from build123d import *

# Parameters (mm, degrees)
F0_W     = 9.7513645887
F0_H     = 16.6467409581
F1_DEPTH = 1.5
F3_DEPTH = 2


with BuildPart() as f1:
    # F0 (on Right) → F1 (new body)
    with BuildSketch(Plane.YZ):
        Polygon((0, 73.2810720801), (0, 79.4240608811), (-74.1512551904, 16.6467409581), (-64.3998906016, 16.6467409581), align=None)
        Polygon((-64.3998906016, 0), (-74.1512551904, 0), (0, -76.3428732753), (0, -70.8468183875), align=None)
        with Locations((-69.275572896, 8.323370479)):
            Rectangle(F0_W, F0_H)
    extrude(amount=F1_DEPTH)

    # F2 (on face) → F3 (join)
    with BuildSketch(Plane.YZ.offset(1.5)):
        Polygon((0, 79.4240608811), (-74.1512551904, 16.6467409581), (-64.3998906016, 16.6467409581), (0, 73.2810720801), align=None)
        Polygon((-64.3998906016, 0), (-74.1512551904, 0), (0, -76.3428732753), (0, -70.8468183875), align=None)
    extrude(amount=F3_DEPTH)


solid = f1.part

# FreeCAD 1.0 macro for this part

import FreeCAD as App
import Part
import Sketcher
Q = App.Units.Quantity

doc = App.newDocument("Part")
body = doc.addObject("PartDesign::Body", "Body")

sketch1 = body.newObject("Sketcher::SketchObject", "Sketch")
sketch1.AttachmentSupport = (doc.getObject("YZ_Plane"), [""])
sketch1.MapMode = "FlatFace"
sketch1.addGeometry([
    Part.LineSegment(App.Vector(0, 73, 0), App.Vector(0, 79, 0)),
    Part.LineSegment(App.Vector(0, 79, 0), App.Vector(-74, 17, 0)),
    Part.LineSegment(App.Vector(-74, 17, 0), App.Vector(-74, 0, 0)),
    Part.LineSegment(App.Vector(-74, 0, 0), App.Vector(0, -76, 0)),
    Part.LineSegment(App.Vector(0, -76, 0), App.Vector(0, -71, 0)),
    Part.LineSegment(App.Vector(0, -71, 0), App.Vector(-64, 0, 0)),
    Part.LineSegment(App.Vector(-64, 0, 0), App.Vector(-64, 17, 0)),
    Part.LineSegment(App.Vector(-64, 17, 0), App.Vector(0, 73, 0)),
], False)
sketch1.addConstraint([
    Sketcher.Constraint("Coincident", 0, 2, 1, 1),
    Sketcher.Constraint("Coincident", 1, 2, 2, 1),
    Sketcher.Constraint("Coincident", 2, 2, 3, 1),
    Sketcher.Constraint("Coincident", 3, 2, 4, 1),
    Sketcher.Constraint("Coincident", 4, 2, 5, 1),
    Sketcher.Constraint("Coincident", 5, 2, 6, 1),
    Sketcher.Constraint("Coincident", 6, 2, 7, 1),
    Sketcher.Constraint("Coincident", 7, 2, 0, 1),
    Sketcher.Constraint("Vertical", 0),
    Sketcher.Constraint("Vertical", 2),
    Sketcher.Constraint("Vertical", 4),
    Sketcher.Constraint("Vertical", 6),
    Sketcher.Constraint("PointOnObject", 0, 2, -2),
    Sketcher.Constraint("PointOnObject", 2, 2, -1),
    Sketcher.Constraint("PointOnObject", 3, 2, -2),
    Sketcher.Constraint("PointOnObject", 5, 2, -1),
    Sketcher.Constraint("Horizontal", 1, 2, 6, 2),
    Sketcher.Constraint("DistanceY", 0, 1, 0, 2, Q("6.142989 mm")),
    Sketcher.Constraint("DistanceY", 2, 2, 2, 1, Q("16.646741 mm")),
    Sketcher.Constraint("Distance", 7, Q("85.760092 mm")),
    Sketcher.Constraint("DistanceY", 4, 1, 4, 2, Q("5.496055 mm")),
    Sketcher.Constraint("DistanceY", -1, 1, 0, 2, Q("79.424061 mm")),
    Sketcher.Constraint("DistanceY", 4, 2, -1, 1, Q("70.846818 mm")),
    Sketcher.Constraint("Distance", 1, Q("97.156577 mm")),
])
pad1 = body.newObject("PartDesign::Pad", "Pad")
pad1.Profile = sketch1
pad1.Length = 1.5

sketch2 = body.newObject("Sketcher::SketchObject", "Sketch001")
sketch2.AttachmentSupport = (doc.getObject("YZ_Plane"), [""])
sketch2.MapMode = "FlatFace"
sketch2.AttachmentOffset = App.Placement(App.Vector(0, 0, 1.5), App.Rotation())
sketch2.addGeometry([
    Part.LineSegment(App.Vector(0, 79, 0), App.Vector(-74, 17, 0)),
    Part.LineSegment(App.Vector(-74, 17, 0), App.Vector(-64, 17, 0)),
    Part.LineSegment(App.Vector(-64, 17, 0), App.Vector(0, 73, 0)),
    Part.LineSegment(App.Vector(0, 73, 0), App.Vector(0, 79, 0)),
    Part.LineSegment(App.Vector(-64, 0, 0), App.Vector(-74, 0, 0)),
    Part.LineSegment(App.Vector(-74, 0, 0), App.Vector(0, -76, 0)),
    Part.LineSegment(App.Vector(0, -76, 0), App.Vector(0, -71, 0)),
    Part.LineSegment(App.Vector(0, -71, 0), App.Vector(-64, 0, 0)),
], False)
sketch2.addConstraint([
    Sketcher.Constraint("Coincident", 0, 2, 1, 1),
    Sketcher.Constraint("Coincident", 1, 2, 2, 1),
    Sketcher.Constraint("Coincident", 2, 2, 3, 1),
    Sketcher.Constraint("Coincident", 3, 2, 0, 1),
    Sketcher.Constraint("Coincident", 4, 2, 5, 1),
    Sketcher.Constraint("Coincident", 5, 2, 6, 1),
    Sketcher.Constraint("Coincident", 6, 2, 7, 1),
    Sketcher.Constraint("Coincident", 7, 2, 4, 1),
    Sketcher.Constraint("Horizontal", 1),
    Sketcher.Constraint("Vertical", 3),
    Sketcher.Constraint("Horizontal", 4),
    Sketcher.Constraint("Vertical", 6),
    Sketcher.Constraint("PointOnObject", 2, 2, -2),
    Sketcher.Constraint("PointOnObject", 4, 2, -1),
    Sketcher.Constraint("PointOnObject", 5, 2, -2),
    Sketcher.Constraint("Vertical", 0, 2, 4, 2),
    Sketcher.Constraint("Vertical", 1, 2, 7, 2),
    Sketcher.Constraint("DistanceY", 3, 1, 3, 2, Q("6.142989 mm")),
    Sketcher.Constraint("Distance", 2, Q("85.760092 mm")),
    Sketcher.Constraint("DistanceX", 1, 1, 1, 2, Q("9.751365 mm")),
    Sketcher.Constraint("DistanceY", 6, 1, 6, 2, Q("5.496055 mm")),
    Sketcher.Constraint("DistanceY", -1, 1, 0, 2, Q("16.646741 mm")),
    Sketcher.Constraint("DistanceX", 1, 2, -1, 1, Q("64.399891 mm")),
    Sketcher.Constraint("DistanceY", 6, 2, -1, 1, Q("70.846818 mm")),
])
pad2 = body.newObject("PartDesign::Pad", "Pad001")
pad2.Profile = sketch2
pad2.Length = 2

doc.recompute()
